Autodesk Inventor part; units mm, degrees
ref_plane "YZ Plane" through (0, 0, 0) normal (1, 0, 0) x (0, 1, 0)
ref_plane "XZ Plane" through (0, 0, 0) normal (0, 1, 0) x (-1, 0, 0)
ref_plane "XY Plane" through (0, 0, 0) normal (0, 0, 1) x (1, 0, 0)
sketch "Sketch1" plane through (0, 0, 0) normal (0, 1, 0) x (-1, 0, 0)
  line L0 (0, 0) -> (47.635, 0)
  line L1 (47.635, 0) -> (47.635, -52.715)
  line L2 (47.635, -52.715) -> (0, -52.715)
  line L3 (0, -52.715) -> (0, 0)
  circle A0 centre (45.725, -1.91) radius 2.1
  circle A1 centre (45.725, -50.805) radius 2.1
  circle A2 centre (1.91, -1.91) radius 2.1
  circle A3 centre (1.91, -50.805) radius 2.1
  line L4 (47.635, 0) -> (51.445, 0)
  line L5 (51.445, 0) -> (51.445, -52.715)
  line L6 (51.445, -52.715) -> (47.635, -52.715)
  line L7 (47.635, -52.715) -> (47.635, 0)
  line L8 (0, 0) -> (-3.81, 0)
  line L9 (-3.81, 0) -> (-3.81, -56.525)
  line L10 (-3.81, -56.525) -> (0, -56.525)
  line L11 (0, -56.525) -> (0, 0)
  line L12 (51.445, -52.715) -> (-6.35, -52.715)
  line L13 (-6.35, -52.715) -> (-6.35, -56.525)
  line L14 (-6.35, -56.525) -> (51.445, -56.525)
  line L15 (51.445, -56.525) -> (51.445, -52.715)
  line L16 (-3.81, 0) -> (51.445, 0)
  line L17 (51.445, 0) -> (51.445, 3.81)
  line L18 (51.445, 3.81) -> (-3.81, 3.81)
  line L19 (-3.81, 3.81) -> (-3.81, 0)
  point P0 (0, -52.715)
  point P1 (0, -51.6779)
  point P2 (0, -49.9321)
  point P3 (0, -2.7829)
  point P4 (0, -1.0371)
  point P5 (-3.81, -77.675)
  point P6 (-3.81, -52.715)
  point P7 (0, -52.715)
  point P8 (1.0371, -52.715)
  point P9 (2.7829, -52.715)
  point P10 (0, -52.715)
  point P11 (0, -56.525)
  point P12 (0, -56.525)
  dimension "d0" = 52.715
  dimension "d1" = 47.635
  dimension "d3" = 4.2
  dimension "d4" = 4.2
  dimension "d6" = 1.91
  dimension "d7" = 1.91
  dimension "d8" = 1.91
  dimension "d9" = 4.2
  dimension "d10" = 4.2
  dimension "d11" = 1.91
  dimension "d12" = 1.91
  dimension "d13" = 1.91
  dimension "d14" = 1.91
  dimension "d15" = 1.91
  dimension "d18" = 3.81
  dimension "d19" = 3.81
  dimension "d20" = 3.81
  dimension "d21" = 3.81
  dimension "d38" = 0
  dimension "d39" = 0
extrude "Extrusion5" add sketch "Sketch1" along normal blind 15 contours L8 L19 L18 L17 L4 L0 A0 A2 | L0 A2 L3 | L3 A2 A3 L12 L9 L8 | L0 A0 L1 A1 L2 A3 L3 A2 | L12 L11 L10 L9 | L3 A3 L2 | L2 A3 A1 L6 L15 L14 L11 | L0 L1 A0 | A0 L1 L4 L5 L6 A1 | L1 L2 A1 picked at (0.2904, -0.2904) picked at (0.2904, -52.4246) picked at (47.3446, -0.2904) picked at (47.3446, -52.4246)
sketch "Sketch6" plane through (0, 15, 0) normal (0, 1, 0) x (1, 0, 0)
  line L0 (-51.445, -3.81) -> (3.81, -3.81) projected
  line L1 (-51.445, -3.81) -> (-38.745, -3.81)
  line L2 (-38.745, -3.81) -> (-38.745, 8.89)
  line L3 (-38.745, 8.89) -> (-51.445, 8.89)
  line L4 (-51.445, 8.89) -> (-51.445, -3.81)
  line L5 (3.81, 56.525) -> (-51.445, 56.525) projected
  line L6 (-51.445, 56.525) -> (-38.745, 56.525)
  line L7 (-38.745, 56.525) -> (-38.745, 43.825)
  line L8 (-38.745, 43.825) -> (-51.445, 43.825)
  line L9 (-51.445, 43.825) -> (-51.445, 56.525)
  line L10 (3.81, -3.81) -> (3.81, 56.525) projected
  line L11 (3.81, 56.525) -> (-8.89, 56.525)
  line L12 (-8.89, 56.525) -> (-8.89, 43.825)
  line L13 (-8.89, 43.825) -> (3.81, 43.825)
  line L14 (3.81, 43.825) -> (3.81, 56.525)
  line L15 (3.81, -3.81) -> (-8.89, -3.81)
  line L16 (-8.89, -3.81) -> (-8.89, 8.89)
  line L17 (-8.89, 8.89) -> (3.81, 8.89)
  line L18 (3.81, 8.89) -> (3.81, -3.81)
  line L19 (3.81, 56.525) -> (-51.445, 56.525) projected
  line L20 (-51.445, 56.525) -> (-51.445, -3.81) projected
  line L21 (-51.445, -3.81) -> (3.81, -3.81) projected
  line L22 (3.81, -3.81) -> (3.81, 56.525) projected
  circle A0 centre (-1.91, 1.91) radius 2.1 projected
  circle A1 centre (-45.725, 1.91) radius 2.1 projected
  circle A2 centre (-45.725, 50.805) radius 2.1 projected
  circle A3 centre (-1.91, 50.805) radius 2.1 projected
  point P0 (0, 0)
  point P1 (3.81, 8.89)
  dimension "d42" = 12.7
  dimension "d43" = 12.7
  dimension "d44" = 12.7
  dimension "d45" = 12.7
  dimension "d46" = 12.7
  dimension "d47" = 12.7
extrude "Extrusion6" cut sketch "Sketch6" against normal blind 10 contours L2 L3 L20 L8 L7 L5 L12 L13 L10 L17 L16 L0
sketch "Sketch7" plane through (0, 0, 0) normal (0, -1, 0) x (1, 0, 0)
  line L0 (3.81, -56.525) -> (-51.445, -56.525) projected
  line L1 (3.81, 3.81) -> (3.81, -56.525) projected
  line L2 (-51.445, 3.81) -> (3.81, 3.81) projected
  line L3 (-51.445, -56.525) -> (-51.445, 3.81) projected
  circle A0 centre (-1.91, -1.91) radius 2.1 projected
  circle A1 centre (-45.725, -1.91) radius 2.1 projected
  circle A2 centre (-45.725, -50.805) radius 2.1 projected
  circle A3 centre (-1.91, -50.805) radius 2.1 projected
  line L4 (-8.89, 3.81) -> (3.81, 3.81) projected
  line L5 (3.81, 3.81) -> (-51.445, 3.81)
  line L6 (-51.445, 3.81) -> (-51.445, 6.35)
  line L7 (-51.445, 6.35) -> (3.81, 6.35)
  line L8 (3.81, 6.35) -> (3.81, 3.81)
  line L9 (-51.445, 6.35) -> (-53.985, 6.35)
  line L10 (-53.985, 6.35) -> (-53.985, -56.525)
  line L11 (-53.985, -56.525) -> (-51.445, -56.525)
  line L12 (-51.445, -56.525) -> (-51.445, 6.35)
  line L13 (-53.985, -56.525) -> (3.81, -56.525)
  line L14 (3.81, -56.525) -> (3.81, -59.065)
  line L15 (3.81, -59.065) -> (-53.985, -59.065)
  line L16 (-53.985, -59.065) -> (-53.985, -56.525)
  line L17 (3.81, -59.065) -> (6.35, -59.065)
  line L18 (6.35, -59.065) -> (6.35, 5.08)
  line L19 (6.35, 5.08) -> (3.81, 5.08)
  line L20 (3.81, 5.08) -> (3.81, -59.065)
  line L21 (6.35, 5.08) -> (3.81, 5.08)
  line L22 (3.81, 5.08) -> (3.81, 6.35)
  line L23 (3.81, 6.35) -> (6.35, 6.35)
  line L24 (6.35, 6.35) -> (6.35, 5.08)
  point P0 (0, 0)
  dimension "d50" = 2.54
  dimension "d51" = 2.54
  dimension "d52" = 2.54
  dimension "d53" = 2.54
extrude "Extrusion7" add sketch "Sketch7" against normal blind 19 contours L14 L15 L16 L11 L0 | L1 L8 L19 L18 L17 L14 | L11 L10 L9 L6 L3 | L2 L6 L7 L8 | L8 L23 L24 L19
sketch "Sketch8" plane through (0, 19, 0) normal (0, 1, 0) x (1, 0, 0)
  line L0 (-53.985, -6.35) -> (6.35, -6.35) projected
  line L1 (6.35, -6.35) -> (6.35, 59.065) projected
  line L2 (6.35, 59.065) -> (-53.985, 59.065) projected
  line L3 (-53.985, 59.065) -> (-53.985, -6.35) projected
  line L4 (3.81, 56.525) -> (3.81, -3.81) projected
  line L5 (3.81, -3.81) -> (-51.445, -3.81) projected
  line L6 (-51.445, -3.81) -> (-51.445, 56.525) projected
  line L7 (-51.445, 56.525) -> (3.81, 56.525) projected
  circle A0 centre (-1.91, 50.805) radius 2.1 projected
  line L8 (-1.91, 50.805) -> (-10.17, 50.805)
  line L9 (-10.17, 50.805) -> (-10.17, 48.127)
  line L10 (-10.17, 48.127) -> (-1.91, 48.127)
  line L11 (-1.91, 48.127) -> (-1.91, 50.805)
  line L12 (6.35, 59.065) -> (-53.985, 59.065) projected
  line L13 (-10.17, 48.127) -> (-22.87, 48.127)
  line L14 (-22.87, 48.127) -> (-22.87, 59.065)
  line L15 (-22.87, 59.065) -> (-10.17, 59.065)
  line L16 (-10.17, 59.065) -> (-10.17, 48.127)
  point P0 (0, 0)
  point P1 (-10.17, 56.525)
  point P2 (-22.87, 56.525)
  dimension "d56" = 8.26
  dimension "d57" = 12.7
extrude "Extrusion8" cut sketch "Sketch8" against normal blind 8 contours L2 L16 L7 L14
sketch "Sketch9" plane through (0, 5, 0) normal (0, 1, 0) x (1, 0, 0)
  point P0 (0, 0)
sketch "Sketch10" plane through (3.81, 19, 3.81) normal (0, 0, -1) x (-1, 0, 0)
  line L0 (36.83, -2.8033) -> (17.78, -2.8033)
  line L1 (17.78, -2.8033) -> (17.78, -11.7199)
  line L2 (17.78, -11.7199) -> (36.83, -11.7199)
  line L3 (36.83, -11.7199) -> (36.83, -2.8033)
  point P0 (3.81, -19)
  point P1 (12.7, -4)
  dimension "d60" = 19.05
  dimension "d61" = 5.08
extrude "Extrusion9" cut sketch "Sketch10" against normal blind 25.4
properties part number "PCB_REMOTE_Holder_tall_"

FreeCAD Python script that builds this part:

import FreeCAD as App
import Part
import Sketcher

V = App.Vector
Q = App.Units.Quantity


def add_polygon(sketch, points):
    """Adds a closed chain of lines whose ends are joined by coincident constraints."""
    first, n = sketch.GeometryCount, len(points)
    for a, b in zip(points, points[1:] + points[:1]):
        sketch.addGeometry(Part.LineSegment(App.Vector(*a, 0), App.Vector(*b, 0)), False)
    for i in range(n):
        sketch.addConstraint(Sketcher.Constraint("Coincident", first + i, 2, first + (i + 1) % n, 1))

doc = App.newDocument("Part")
body = doc.addObject("PartDesign::Body", "Body")

# Sketch on XZ plane
sketch1 = body.newObject("Sketcher::SketchObject", "Sketch")
sketch1.AttachmentSupport = (doc.getObject("XZ_Plane"), [""])
sketch1.MapMode = "FlatFace"
add_polygon(sketch1, [(3.8, 3.8), (3.8, -56.5), (-51.4, -56.5), (-51.4, 3.8)])  # lines 0-3
sketch1.addGeometry(Part.Circle(V(-45.7, -1.9, 0), V(0, 0, 1), 2.1), False)  # 4
sketch1.addGeometry(Part.Circle(V(-1.9, -1.9, 0), V(0, 0, 1), 2.1), False)  # 5
sketch1.addGeometry(Part.Circle(V(-1.9, -50.8, 0), V(0, 0, 1), 2.1), False)  # 6
sketch1.addGeometry(Part.Circle(V(-45.7, -50.8, 0), V(0, 0, 1), 2.1), False)  # 7
sketch1.addConstraint(Sketcher.Constraint("Vertical", 0))
sketch1.addConstraint(Sketcher.Constraint("Horizontal", 1))
sketch1.addConstraint(Sketcher.Constraint("Vertical", 2))
sketch1.addConstraint(Sketcher.Constraint("Horizontal", 3))
sketch1.addConstraint(Sketcher.Constraint("Equal", 4, 5))
sketch1.addConstraint(Sketcher.Constraint("Equal", 5, 6))
sketch1.addConstraint(Sketcher.Constraint("Equal", 6, 7))
sketch1.addConstraint(Sketcher.Constraint("Horizontal", 4, 3, 5, 3))
sketch1.addConstraint(Sketcher.Constraint("Horizontal", 6, 3, 7, 3))
sketch1.addConstraint(Sketcher.Constraint("Vertical", 5, 3, 6, 3))
sketch1.addConstraint(Sketcher.Constraint("Vertical", 4, 3, 7, 3))
sketch1.addConstraint(Sketcher.Constraint("Diameter", 4, Q("4.2 mm")))
sketch1.addConstraint(Sketcher.Constraint("DistanceY", 4, 3, -1, 1, Q("1.91 mm")))
sketch1.addConstraint(Sketcher.Constraint("DistanceX", 5, 3, -1, 1, Q("1.91 mm")))
sketch1.addConstraint(Sketcher.Constraint("DistanceX", -1, 1, 0, 2, Q("3.81 mm")))
sketch1.addConstraint(Sketcher.Constraint("DistanceY", -1, 1, 2, 2, Q("3.81 mm")))
sketch1.addConstraint(Sketcher.Constraint("DistanceX", 1, 2, 1, 1, Q("55.255 mm")))
sketch1.addConstraint(Sketcher.Constraint("DistanceY", 0, 2, 0, 1, Q("60.335 mm")))
sketch1.addConstraint(Sketcher.Constraint("DistanceY", 0, 2, 6, 3, Q("5.72 mm")))
sketch1.addConstraint(Sketcher.Constraint("DistanceX", 1, 2, 7, 3, Q("5.72 mm")))
pad1 = body.newObject("PartDesign::Pad", "Pad")
pad1.Profile = sketch1
pad1.Length = 15
pad1.Reversed = True

# Sketch on XZ plane
sketch2 = body.newObject("Sketcher::SketchObject", "Sketch001")
sketch2.AttachmentSupport = (doc.getObject("XZ_Plane"), [""])
sketch2.MapMode = "FlatFace"
sketch2.AttachmentOffset = App.Placement(V(0, 0, -15), App.Rotation())
add_polygon(sketch2, [(-39, -9), (-39, 4), (-9, 4), (-9, -9), (4, -9), (4, -44), (-9, -44), (-9, -57), (-39, -57), (-39, -44), (-51, -44), (-51, -9)])  # lines 0-11
sketch2.addConstraint(Sketcher.Constraint("Vertical", 0))
sketch2.addConstraint(Sketcher.Constraint("Horizontal", 1))
sketch2.addConstraint(Sketcher.Constraint("Vertical", 2))
sketch2.addConstraint(Sketcher.Constraint("Horizontal", 3))
sketch2.addConstraint(Sketcher.Constraint("Vertical", 4))
sketch2.addConstraint(Sketcher.Constraint("Horizontal", 5))
sketch2.addConstraint(Sketcher.Constraint("Vertical", 6))
sketch2.addConstraint(Sketcher.Constraint("Horizontal", 7))
sketch2.addConstraint(Sketcher.Constraint("Vertical", 8))
sketch2.addConstraint(Sketcher.Constraint("Horizontal", 9))
sketch2.addConstraint(Sketcher.Constraint("Vertical", 10))
sketch2.addConstraint(Sketcher.Constraint("Horizontal", 11))
sketch2.addConstraint(Sketcher.Constraint("Horizontal", 5, 2, 8, 2))
sketch2.addConstraint(Sketcher.Constraint("Horizontal", 3, 2, 10, 2))
sketch2.addConstraint(Sketcher.Constraint("Vertical", 2, 2, 5, 2))
sketch2.addConstraint(Sketcher.Constraint("Vertical", 0, 2, 7, 2))
sketch2.addConstraint(Sketcher.Constraint("Equal", 5, 9))
sketch2.addConstraint(Sketcher.Constraint("Equal", 11, 0))
sketch2.addConstraint(Sketcher.Constraint("Equal", 2, 6))
sketch2.addConstraint(Sketcher.Constraint("DistanceX", 3, 1, 3, 2, Q("12.7 mm")))
sketch2.addConstraint(Sketcher.Constraint("DistanceX", 1, 1, 1, 2, Q("29.855 mm")))
sketch2.addConstraint(Sketcher.Constraint("DistanceY", 4, 2, 4, 1, Q("34.935 mm")))
sketch2.addConstraint(Sketcher.Constraint("DistanceY", -1, 1, 0, 2, Q("3.81 mm")))
sketch2.addConstraint(Sketcher.Constraint("DistanceX", 1, 2, -1, 1, Q("8.89 mm")))
pocket1 = body.newObject("PartDesign::Pocket", "Pocket")
pocket1.Profile = sketch2
pocket1.Length = 10
pocket1.Reversed = True

# Sketch on XZ plane
sketch3 = body.newObject("Sketcher::SketchObject", "Sketch002")
sketch3.AttachmentSupport = (doc.getObject("XZ_Plane"), [""])
sketch3.MapMode = "FlatFace"
add_polygon(sketch3, [(-54, -59), (6, -59), (6, 6), (-54, 6)])  # lines 0-3
add_polygon(sketch3, [(4, -57), (-51, -57), (-51, 4), (4, 4)])  # lines 4-7
sketch3.addConstraint(Sketcher.Constraint("Horizontal", 0))
sketch3.addConstraint(Sketcher.Constraint("Vertical", 1))
sketch3.addConstraint(Sketcher.Constraint("Horizontal", 2))
sketch3.addConstraint(Sketcher.Constraint("Vertical", 3))
sketch3.addConstraint(Sketcher.Constraint("Horizontal", 4))
sketch3.addConstraint(Sketcher.Constraint("Vertical", 5))
sketch3.addConstraint(Sketcher.Constraint("Horizontal", 6))
sketch3.addConstraint(Sketcher.Constraint("Vertical", 7))
sketch3.addConstraint(Sketcher.Constraint("Equal", 2, 5))
sketch3.addConstraint(Sketcher.Constraint("DistanceX", 3, 2, 4, 2, Q("2.54 mm")))
sketch3.addConstraint(Sketcher.Constraint("DistanceY", 3, 2, 4, 2, Q("2.54 mm")))
sketch3.addConstraint(Sketcher.Constraint("DistanceY", 5, 2, 2, 2, Q("2.54 mm")))
sketch3.addConstraint(Sketcher.Constraint("DistanceX", 6, 2, 1, 2, Q("2.54 mm")))
sketch3.addConstraint(Sketcher.Constraint("DistanceX", 0, 1, 0, 2, Q("60.335 mm")))
sketch3.addConstraint(Sketcher.Constraint("DistanceX", -1, 1, 0, 2, Q("6.35 mm")))
sketch3.addConstraint(Sketcher.Constraint("DistanceY", -1, 1, 1, 2, Q("6.35 mm")))
pad2 = body.newObject("PartDesign::Pad", "Pad001")
pad2.Profile = sketch3
pad2.Length = 19
pad2.Reversed = True

# Sketch on XZ plane
sketch4 = body.newObject("Sketcher::SketchObject", "Sketch003")
sketch4.AttachmentSupport = (doc.getObject("XZ_Plane"), [""])
sketch4.MapMode = "FlatFace"
sketch4.AttachmentOffset = App.Placement(V(0, 0, -19), App.Rotation())
add_polygon(sketch4, [(-10.2, -59.1), (-22.9, -59.1), (-22.9, -56.5), (-10.2, -56.5)])  # lines 0-3
sketch4.addConstraint(Sketcher.Constraint("Horizontal", 0))
sketch4.addConstraint(Sketcher.Constraint("Vertical", 1))
sketch4.addConstraint(Sketcher.Constraint("Horizontal", 2))
sketch4.addConstraint(Sketcher.Constraint("Vertical", 3))
sketch4.addConstraint(Sketcher.Constraint("DistanceX", 0, 2, 0, 1, Q("12.7 mm")))
sketch4.addConstraint(Sketcher.Constraint("DistanceY", 1, 1, 1, 2, Q("2.54 mm")))
sketch4.addConstraint(Sketcher.Constraint("DistanceX", 0, 2, -1, 1, Q("22.87 mm")))
sketch4.addConstraint(Sketcher.Constraint("DistanceY", 0, 2, -1, 1, Q("59.065 mm")))
pocket2 = body.newObject("PartDesign::Pocket", "Pocket001")
pocket2.Profile = sketch4
pocket2.Length = 8
pocket2.Reversed = True

# Sketch on XY plane
sketch5 = body.newObject("Sketcher::SketchObject", "Sketch004")
sketch5.AttachmentSupport = (doc.getObject("XY_Plane"), [""])
sketch5.MapMode = "FlatFace"
sketch5.AttachmentOffset = App.Placement(V(0, 0, 3.81), App.Rotation())
add_polygon(sketch5, [(-33, 7), (-33, 16), (-14, 16), (-14, 7)])  # lines 0-3
sketch5.addConstraint(Sketcher.Constraint("Vertical", 0))
sketch5.addConstraint(Sketcher.Constraint("Horizontal", 1))
sketch5.addConstraint(Sketcher.Constraint("Vertical", 2))
sketch5.addConstraint(Sketcher.Constraint("Horizontal", 3))
sketch5.addConstraint(Sketcher.Constraint("DistanceX", 1, 1, 1, 2, Q("19.05 mm")))
sketch5.addConstraint(Sketcher.Constraint("DistanceX", 0, 2, -1, 1, Q("33.02 mm")))
sketch5.addConstraint(Sketcher.Constraint("DistanceY", -1, 1, 2, 2, Q("7.28 mm")))
sketch5.addConstraint(Sketcher.Constraint("DistanceY", 0, 1, 0, 2, Q("8.9166 mm")))
pocket3 = body.newObject("PartDesign::Pocket", "Pocket002")
pocket3.Profile = sketch5
pocket3.Length = 25.4
pocket3.Reversed = True

doc.recompute()
